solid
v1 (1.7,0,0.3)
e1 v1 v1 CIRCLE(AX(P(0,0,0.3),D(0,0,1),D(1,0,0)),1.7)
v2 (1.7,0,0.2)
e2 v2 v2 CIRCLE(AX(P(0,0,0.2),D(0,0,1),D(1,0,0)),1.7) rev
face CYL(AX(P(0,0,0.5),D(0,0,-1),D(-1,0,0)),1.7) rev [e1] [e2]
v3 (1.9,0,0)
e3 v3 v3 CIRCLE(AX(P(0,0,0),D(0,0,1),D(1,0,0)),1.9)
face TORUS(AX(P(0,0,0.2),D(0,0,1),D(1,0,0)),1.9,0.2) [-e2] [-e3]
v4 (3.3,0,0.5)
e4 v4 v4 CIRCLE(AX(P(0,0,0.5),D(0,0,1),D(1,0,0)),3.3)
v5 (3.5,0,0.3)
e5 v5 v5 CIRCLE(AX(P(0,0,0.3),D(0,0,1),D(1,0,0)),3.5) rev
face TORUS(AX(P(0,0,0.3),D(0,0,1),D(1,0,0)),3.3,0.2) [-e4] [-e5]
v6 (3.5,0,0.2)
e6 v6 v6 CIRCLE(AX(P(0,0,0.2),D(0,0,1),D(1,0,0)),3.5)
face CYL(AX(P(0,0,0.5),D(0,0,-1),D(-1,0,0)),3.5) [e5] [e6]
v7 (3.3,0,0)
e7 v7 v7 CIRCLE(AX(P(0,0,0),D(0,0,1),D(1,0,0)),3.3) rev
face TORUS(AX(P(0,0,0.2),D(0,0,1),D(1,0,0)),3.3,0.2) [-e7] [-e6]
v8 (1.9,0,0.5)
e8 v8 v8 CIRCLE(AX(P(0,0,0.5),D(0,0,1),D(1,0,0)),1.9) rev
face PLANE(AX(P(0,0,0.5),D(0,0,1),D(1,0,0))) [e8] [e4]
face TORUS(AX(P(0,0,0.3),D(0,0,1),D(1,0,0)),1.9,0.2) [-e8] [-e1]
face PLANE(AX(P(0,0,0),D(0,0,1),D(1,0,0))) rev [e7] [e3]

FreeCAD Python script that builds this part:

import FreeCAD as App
import Part
import Sketcher

V = App.Vector


def edges_at(feature, points):
    """Names of the edges that pass closest to the given points."""
    edges = feature.Shape.Edges
    near = lambda p: min(range(len(edges)), key=lambda i: edges[i].distToShape(Part.Vertex(*p))[0])
    return sorted({f"Edge{near(p) + 1}" for p in points})

doc = App.newDocument("Part")
body = doc.addObject("PartDesign::Body", "Body")

# Sketch on XY plane
sketch1 = body.newObject("Sketcher::SketchObject", "Sketch")
sketch1.AttachmentSupport = (doc.getObject("XY_Plane"), [""])
sketch1.MapMode = "FlatFace"
sketch1.addGeometry(Part.Circle(V(0, 0, 0), V(0, 0, 1), 3.5), False)
sketch1.addGeometry(Part.Circle(V(0, 0, 0), V(0, 0, 1), 1.7), False)
sketch1.addConstraint(Sketcher.Constraint("Coincident", 0, 3, -1, 1))
sketch1.addConstraint(Sketcher.Constraint("Coincident", 1, 3, -1, 1))
sketch1.addConstraint(Sketcher.Constraint("Diameter", 0, 7.0))
sketch1.addConstraint(Sketcher.Constraint("Diameter", 1, 3.4))
pad1 = body.newObject("PartDesign::Pad", "Pad")
pad1.Profile = sketch1
pad1.Length = 0.5
doc.recompute()

fillet = body.newObject("PartDesign::Fillet", "Fillet")
fillet.Base = (pad1, edges_at(pad1, [
    (-3.5, 0, 0),
    (-3.5, 0, 0.5),
    (-1.7, 0, 0),
    (-1.7, 0, 0.5),
]))
fillet.Radius = 0.2

doc.recompute()
